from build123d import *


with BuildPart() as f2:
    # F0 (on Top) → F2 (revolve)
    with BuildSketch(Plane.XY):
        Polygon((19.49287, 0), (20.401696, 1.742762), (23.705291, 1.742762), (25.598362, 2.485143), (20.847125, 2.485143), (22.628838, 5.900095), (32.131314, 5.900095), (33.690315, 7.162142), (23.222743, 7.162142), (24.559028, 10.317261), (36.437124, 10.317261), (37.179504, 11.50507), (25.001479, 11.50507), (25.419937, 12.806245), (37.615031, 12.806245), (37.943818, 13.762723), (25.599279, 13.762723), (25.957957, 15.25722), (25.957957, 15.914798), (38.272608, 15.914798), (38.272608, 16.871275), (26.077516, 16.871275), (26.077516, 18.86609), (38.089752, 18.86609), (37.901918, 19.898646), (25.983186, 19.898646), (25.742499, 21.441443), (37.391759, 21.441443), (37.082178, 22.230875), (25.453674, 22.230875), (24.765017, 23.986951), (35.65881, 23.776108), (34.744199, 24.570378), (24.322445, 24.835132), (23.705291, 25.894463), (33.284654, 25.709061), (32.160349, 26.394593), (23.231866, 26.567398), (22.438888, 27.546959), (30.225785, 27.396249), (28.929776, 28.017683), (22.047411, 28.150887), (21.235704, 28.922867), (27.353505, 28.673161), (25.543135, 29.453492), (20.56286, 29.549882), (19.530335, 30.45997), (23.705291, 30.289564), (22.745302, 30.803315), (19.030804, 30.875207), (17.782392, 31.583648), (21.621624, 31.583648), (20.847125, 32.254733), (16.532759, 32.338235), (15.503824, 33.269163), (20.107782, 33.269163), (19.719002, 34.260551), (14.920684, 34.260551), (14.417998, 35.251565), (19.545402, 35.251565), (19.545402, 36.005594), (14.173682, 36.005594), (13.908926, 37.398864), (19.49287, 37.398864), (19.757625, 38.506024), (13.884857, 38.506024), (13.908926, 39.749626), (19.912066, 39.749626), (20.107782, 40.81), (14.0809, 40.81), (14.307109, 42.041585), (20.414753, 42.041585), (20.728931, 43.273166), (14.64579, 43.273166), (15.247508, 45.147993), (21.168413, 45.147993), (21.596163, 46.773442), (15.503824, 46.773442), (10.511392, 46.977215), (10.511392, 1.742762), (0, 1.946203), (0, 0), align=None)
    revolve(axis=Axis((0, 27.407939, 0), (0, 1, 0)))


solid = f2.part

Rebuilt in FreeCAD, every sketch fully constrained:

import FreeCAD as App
import Part
import Sketcher
from FreeCAD import Vector

doc = App.newDocument("Part")
params = doc.addObject("Spreadsheet::Sheet", "Params")
for row, (alias, value) in enumerate([
    ("revolution_angle", "360 deg"),
], start=1):
    params.set(f"A{row}", alias)
    params.set(f"B{row}", "=" + value)
    params.setAlias(f"B{row}", alias)

body = doc.addObject("PartDesign::Body", "Body")

# Sketch on XY plane
sketch1 = body.newObject("Sketcher::SketchObject", "Sketch")
sketch1.AttachmentSupport = (doc.getObject("XY_Plane"), [""])
sketch1.MapMode = "FlatFace"
sketch1.addGeometry(Part.LineSegment(Vector(19.49287, 0, 0), Vector(20.401696, 1.742762, 0)), False)
sketch1.addGeometry(Part.LineSegment(Vector(20.401696, 1.742762, 0), Vector(23.705291, 1.742762, 0)), False)
sketch1.addGeometry(Part.LineSegment(Vector(23.705291, 1.742762, 0), Vector(25.598362, 2.485143, 0)), False)
sketch1.addGeometry(Part.LineSegment(Vector(25.598362, 2.485143, 0), Vector(20.847125, 2.485143, 0)), False)
sketch1.addGeometry(Part.LineSegment(Vector(20.847125, 2.485143, 0), Vector(22.628838, 5.900095, 0)), False)
sketch1.addGeometry(Part.LineSegment(Vector(22.628838, 5.900095, 0), Vector(32.131314, 5.900095, 0)), False)
sketch1.addGeometry(Part.LineSegment(Vector(32.131314, 5.900095, 0), Vector(33.690315, 7.162142, 0)), False)
sketch1.addGeometry(Part.LineSegment(Vector(33.690315, 7.162142, 0), Vector(23.222743, 7.162142, 0)), False)
sketch1.addGeometry(Part.LineSegment(Vector(23.222743, 7.162142, 0), Vector(24.559028, 10.317261, 0)), False)
sketch1.addGeometry(Part.LineSegment(Vector(24.559028, 10.317261, 0), Vector(36.437124, 10.317261, 0)), False)
sketch1.addGeometry(Part.LineSegment(Vector(36.437124, 10.317261, 0), Vector(37.179504, 11.50507, 0)), False)
sketch1.addGeometry(Part.LineSegment(Vector(37.179504, 11.50507, 0), Vector(25.001479, 11.50507, 0)), False)
sketch1.addGeometry(Part.LineSegment(Vector(25.001479, 11.50507, 0), Vector(25.419937, 12.806245, 0)), False)
sketch1.addGeometry(Part.LineSegment(Vector(25.419937, 12.806245, 0), Vector(37.615031, 12.806245, 0)), False)
sketch1.addGeometry(Part.LineSegment(Vector(37.615031, 12.806245, 0), Vector(37.943818, 13.762723, 0)), False)
sketch1.addGeometry(Part.LineSegment(Vector(37.943818, 13.762723, 0), Vector(25.599279, 13.762723, 0)), False)
sketch1.addGeometry(Part.LineSegment(Vector(25.599279, 13.762723, 0), Vector(25.957957, 15.25722, 0)), False)
sketch1.addGeometry(Part.LineSegment(Vector(25.957957, 15.25722, 0), Vector(25.957957, 15.914798, 0)), False)
sketch1.addGeometry(Part.LineSegment(Vector(25.957957, 15.914798, 0), Vector(38.272608, 15.914798, 0)), False)
sketch1.addGeometry(Part.LineSegment(Vector(38.272608, 15.914798, 0), Vector(38.272608, 16.871275, 0)), False)
sketch1.addGeometry(Part.LineSegment(Vector(38.272608, 16.871275, 0), Vector(26.077516, 16.871275, 0)), False)
sketch1.addGeometry(Part.LineSegment(Vector(26.077516, 16.871275, 0), Vector(26.077516, 18.86609, 0)), False)
sketch1.addGeometry(Part.LineSegment(Vector(26.077516, 18.86609, 0), Vector(38.089752, 18.86609, 0)), False)
sketch1.addGeometry(Part.LineSegment(Vector(38.089752, 18.86609, 0), Vector(37.901918, 19.898646, 0)), False)
sketch1.addGeometry(Part.LineSegment(Vector(37.901918, 19.898646, 0), Vector(25.983186, 19.898646, 0)), False)
sketch1.addGeometry(Part.LineSegment(Vector(25.983186, 19.898646, 0), Vector(25.742499, 21.441443, 0)), False)
sketch1.addGeometry(Part.LineSegment(Vector(25.742499, 21.441443, 0), Vector(37.391759, 21.441443, 0)), False)
sketch1.addGeometry(Part.LineSegment(Vector(37.391759, 21.441443, 0), Vector(37.082178, 22.230875, 0)), False)
sketch1.addGeometry(Part.LineSegment(Vector(37.082178, 22.230875, 0), Vector(25.453674, 22.230875, 0)), False)
sketch1.addGeometry(Part.LineSegment(Vector(25.453674, 22.230875, 0), Vector(24.765017, 23.986951, 0)), False)
sketch1.addGeometry(Part.LineSegment(Vector(24.765017, 23.986951, 0), Vector(35.65881, 23.776108, 0)), False)
sketch1.addGeometry(Part.LineSegment(Vector(35.65881, 23.776108, 0), Vector(34.744199, 24.570378, 0)), False)
sketch1.addGeometry(Part.LineSegment(Vector(34.744199, 24.570378, 0), Vector(24.322445, 24.835132, 0)), False)
sketch1.addGeometry(Part.LineSegment(Vector(24.322445, 24.835132, 0), Vector(23.705291, 25.894463, 0)), False)
sketch1.addGeometry(Part.LineSegment(Vector(23.705291, 25.894463, 0), Vector(33.284654, 25.709061, 0)), False)
sketch1.addGeometry(Part.LineSegment(Vector(33.284654, 25.709061, 0), Vector(32.160349, 26.394593, 0)), False)
sketch1.addGeometry(Part.LineSegment(Vector(32.160349, 26.394593, 0), Vector(23.231866, 26.567398, 0)), False)
sketch1.addGeometry(Part.LineSegment(Vector(23.231866, 26.567398, 0), Vector(22.438888, 27.546959, 0)), False)
sketch1.addGeometry(Part.LineSegment(Vector(22.438888, 27.546959, 0), Vector(30.225785, 27.396249, 0)), False)
sketch1.addGeometry(Part.LineSegment(Vector(30.225785, 27.396249, 0), Vector(28.929776, 28.017683, 0)), False)
sketch1.addGeometry(Part.LineSegment(Vector(28.929776, 28.017683, 0), Vector(22.047411, 28.150887, 0)), False)
sketch1.addGeometry(Part.LineSegment(Vector(22.047411, 28.150887, 0), Vector(21.235704, 28.922867, 0)), False)
sketch1.addGeometry(Part.LineSegment(Vector(21.235704, 28.922867, 0), Vector(27.353505, 28.673161, 0)), False)
sketch1.addGeometry(Part.LineSegment(Vector(27.353505, 28.673161, 0), Vector(25.543135, 29.453492, 0)), False)
sketch1.addGeometry(Part.LineSegment(Vector(25.543135, 29.453492, 0), Vector(20.56286, 29.549882, 0)), False)
sketch1.addGeometry(Part.LineSegment(Vector(20.56286, 29.549882, 0), Vector(19.530335, 30.45997, 0)), False)
sketch1.addGeometry(Part.LineSegment(Vector(19.530335, 30.45997, 0), Vector(23.705291, 30.289564, 0)), False)
sketch1.addGeometry(Part.LineSegment(Vector(23.705291, 30.289564, 0), Vector(22.745302, 30.803315, 0)), False)
sketch1.addGeometry(Part.LineSegment(Vector(22.745302, 30.803315, 0), Vector(19.030804, 30.875207, 0)), False)
sketch1.addGeometry(Part.LineSegment(Vector(19.030804, 30.875207, 0), Vector(17.782392, 31.583648, 0)), False)
sketch1.addGeometry(Part.LineSegment(Vector(17.782392, 31.583648, 0), Vector(21.621624, 31.583648, 0)), False)
sketch1.addGeometry(Part.LineSegment(Vector(21.621624, 31.583648, 0), Vector(20.847125, 32.254733, 0)), False)
sketch1.addGeometry(Part.LineSegment(Vector(20.847125, 32.254733, 0), Vector(16.532759, 32.338235, 0)), False)
sketch1.addGeometry(Part.LineSegment(Vector(16.532759, 32.338235, 0), Vector(15.503824, 33.269163, 0)), False)
sketch1.addGeometry(Part.LineSegment(Vector(15.503824, 33.269163, 0), Vector(20.107782, 33.269163, 0)), False)
sketch1.addGeometry(Part.LineSegment(Vector(20.107782, 33.269163, 0), Vector(19.719002, 34.260551, 0)), False)
sketch1.addGeometry(Part.LineSegment(Vector(19.719002, 34.260551, 0), Vector(14.920684, 34.260551, 0)), False)
sketch1.addGeometry(Part.LineSegment(Vector(14.920684, 34.260551, 0), Vector(14.417998, 35.251565, 0)), False)
sketch1.addGeometry(Part.LineSegment(Vector(14.417998, 35.251565, 0), Vector(19.545402, 35.251565, 0)), False)
sketch1.addGeometry(Part.LineSegment(Vector(19.545402, 35.251565, 0), Vector(19.545402, 36.005594, 0)), False)
sketch1.addGeometry(Part.LineSegment(Vector(19.545402, 36.005594, 0), Vector(14.173682, 36.005594, 0)), False)
sketch1.addGeometry(Part.LineSegment(Vector(14.173682, 36.005594, 0), Vector(13.908926, 37.398864, 0)), False)
sketch1.addGeometry(Part.LineSegment(Vector(13.908926, 37.398864, 0), Vector(19.49287, 37.398864, 0)), False)
sketch1.addGeometry(Part.LineSegment(Vector(19.49287, 37.398864, 0), Vector(19.757625, 38.506024, 0)), False)
sketch1.addGeometry(Part.LineSegment(Vector(19.757625, 38.506024, 0), Vector(13.884857, 38.506024, 0)), False)
sketch1.addGeometry(Part.LineSegment(Vector(13.884857, 38.506024, 0), Vector(13.908926, 39.749626, 0)), False)
sketch1.addGeometry(Part.LineSegment(Vector(13.908926, 39.749626, 0), Vector(19.912066, 39.749626, 0)), False)
sketch1.addGeometry(Part.LineSegment(Vector(19.912066, 39.749626, 0), Vector(20.107782, 40.81, 0)), False)
sketch1.addGeometry(Part.LineSegment(Vector(20.107782, 40.81, 0), Vector(14.0809, 40.81, 0)), False)
sketch1.addGeometry(Part.LineSegment(Vector(14.0809, 40.81, 0), Vector(14.307109, 42.041585, 0)), False)
sketch1.addGeometry(Part.LineSegment(Vector(14.307109, 42.041585, 0), Vector(20.414753, 42.041585, 0)), False)
sketch1.addGeometry(Part.LineSegment(Vector(20.414753, 42.041585, 0), Vector(20.728931, 43.273166, 0)), False)
sketch1.addGeometry(Part.LineSegment(Vector(20.728931, 43.273166, 0), Vector(14.64579, 43.273166, 0)), False)
sketch1.addGeometry(Part.LineSegment(Vector(14.64579, 43.273166, 0), Vector(15.247508, 45.147993, 0)), False)
sketch1.addGeometry(Part.LineSegment(Vector(15.247508, 45.147993, 0), Vector(21.168413, 45.147993, 0)), False)
sketch1.addGeometry(Part.LineSegment(Vector(21.168413, 45.147993, 0), Vector(21.596163, 46.773442, 0)), False)
sketch1.addGeometry(Part.LineSegment(Vector(21.596163, 46.773442, 0), Vector(15.503824, 46.773442, 0)), False)
sketch1.addGeometry(Part.LineSegment(Vector(15.503824, 46.773442, 0), Vector(10.511392, 46.977215, 0)), False)
sketch1.addGeometry(Part.LineSegment(Vector(10.511392, 46.977215, 0), Vector(10.511392, 1.742762, 0)), False)
sketch1.addGeometry(Part.LineSegment(Vector(10.511392, 1.742762, 0), Vector(0, 1.946203, 0)), False)
sketch1.addGeometry(Part.LineSegment(Vector(0, 1.946203, 0), Vector(0, 0, 0)), False)
sketch1.addGeometry(Part.LineSegment(Vector(0, 0, 0), Vector(19.49287, 0, 0)), False)
sketch1.addConstraint(Sketcher.Constraint("Coincident", 0, 2, 1, 1))
sketch1.addConstraint(Sketcher.Constraint("Coincident", 1, 2, 2, 1))
sketch1.addConstraint(Sketcher.Constraint("Coincident", 2, 2, 3, 1))
sketch1.addConstraint(Sketcher.Constraint("Coincident", 3, 2, 4, 1))
sketch1.addConstraint(Sketcher.Constraint("Coincident", 4, 2, 5, 1))
sketch1.addConstraint(Sketcher.Constraint("Coincident", 5, 2, 6, 1))
sketch1.addConstraint(Sketcher.Constraint("Coincident", 6, 2, 7, 1))
sketch1.addConstraint(Sketcher.Constraint("Coincident", 7, 2, 8, 1))
sketch1.addConstraint(Sketcher.Constraint("Coincident", 8, 2, 9, 1))
sketch1.addConstraint(Sketcher.Constraint("Coincident", 9, 2, 10, 1))
sketch1.addConstraint(Sketcher.Constraint("Coincident", 10, 2, 11, 1))
sketch1.addConstraint(Sketcher.Constraint("Coincident", 11, 2, 12, 1))
sketch1.addConstraint(Sketcher.Constraint("Coincident", 12, 2, 13, 1))
sketch1.addConstraint(Sketcher.Constraint("Coincident", 13, 2, 14, 1))
sketch1.addConstraint(Sketcher.Constraint("Coincident", 14, 2, 15, 1))
sketch1.addConstraint(Sketcher.Constraint("Coincident", 15, 2, 16, 1))
sketch1.addConstraint(Sketcher.Constraint("Coincident", 16, 2, 17, 1))
sketch1.addConstraint(Sketcher.Constraint("Coincident", 17, 2, 18, 1))
sketch1.addConstraint(Sketcher.Constraint("Coincident", 18, 2, 19, 1))
sketch1.addConstraint(Sketcher.Constraint("Coincident", 19, 2, 20, 1))
sketch1.addConstraint(Sketcher.Constraint("Coincident", 20, 2, 21, 1))
sketch1.addConstraint(Sketcher.Constraint("Coincident", 21, 2, 22, 1))
sketch1.addConstraint(Sketcher.Constraint("Coincident", 22, 2, 23, 1))
sketch1.addConstraint(Sketcher.Constraint("Coincident", 23, 2, 24, 1))
sketch1.addConstraint(Sketcher.Constraint("Coincident", 24, 2, 25, 1))
sketch1.addConstraint(Sketcher.Constraint("Coincident", 25, 2, 26, 1))
sketch1.addConstraint(Sketcher.Constraint("Coincident", 26, 2, 27, 1))
sketch1.addConstraint(Sketcher.Constraint("Coincident", 27, 2, 28, 1))
sketch1.addConstraint(Sketcher.Constraint("Coincident", 28, 2, 29, 1))
sketch1.addConstraint(Sketcher.Constraint("Coincident", 29, 2, 30, 1))
sketch1.addConstraint(Sketcher.Constraint("Coincident", 30, 2, 31, 1))
sketch1.addConstraint(Sketcher.Constraint("Coincident", 31, 2, 32, 1))
sketch1.addConstraint(Sketcher.Constraint("Coincident", 32, 2, 33, 1))
sketch1.addConstraint(Sketcher.Constraint("Coincident", 33, 2, 34, 1))
sketch1.addConstraint(Sketcher.Constraint("Coincident", 34, 2, 35, 1))
sketch1.addConstraint(Sketcher.Constraint("Coincident", 35, 2, 36, 1))
sketch1.addConstraint(Sketcher.Constraint("Coincident", 36, 2, 37, 1))
sketch1.addConstraint(Sketcher.Constraint("Coincident", 37, 2, 38, 1))
sketch1.addConstraint(Sketcher.Constraint("Coincident", 38, 2, 39, 1))
sketch1.addConstraint(Sketcher.Constraint("Coincident", 39, 2, 40, 1))
sketch1.addConstraint(Sketcher.Constraint("Coincident", 40, 2, 41, 1))
sketch1.addConstraint(Sketcher.Constraint("Coincident", 41, 2, 42, 1))
sketch1.addConstraint(Sketcher.Constraint("Coincident", 42, 2, 43, 1))
sketch1.addConstraint(Sketcher.Constraint("Coincident", 43, 2, 44, 1))
sketch1.addConstraint(Sketcher.Constraint("Coincident", 44, 2, 45, 1))
sketch1.addConstraint(Sketcher.Constraint("Coincident", 45, 2, 46, 1))
sketch1.addConstraint(Sketcher.Constraint("Coincident", 46, 2, 47, 1))
sketch1.addConstraint(Sketcher.Constraint("Coincident", 47, 2, 48, 1))
sketch1.addConstraint(Sketcher.Constraint("Coincident", 48, 2, 49, 1))
sketch1.addConstraint(Sketcher.Constraint("Coincident", 49, 2, 50, 1))
sketch1.addConstraint(Sketcher.Constraint("Coincident", 50, 2, 51, 1))
sketch1.addConstraint(Sketcher.Constraint("Coincident", 51, 2, 52, 1))
sketch1.addConstraint(Sketcher.Constraint("Coincident", 52, 2, 53, 1))
sketch1.addConstraint(Sketcher.Constraint("Coincident", 53, 2, 54, 1))
sketch1.addConstraint(Sketcher.Constraint("Coincident", 54, 2, 55, 1))
sketch1.addConstraint(Sketcher.Constraint("Coincident", 55, 2, 56, 1))
sketch1.addConstraint(Sketcher.Constraint("Coincident", 56, 2, 57, 1))
sketch1.addConstraint(Sketcher.Constraint("Coincident", 57, 2, 58, 1))
sketch1.addConstraint(Sketcher.Constraint("Coincident", 58, 2, 59, 1))
sketch1.addConstraint(Sketcher.Constraint("Coincident", 59, 2, 60, 1))
sketch1.addConstraint(Sketcher.Constraint("Coincident", 60, 2, 61, 1))
sketch1.addConstraint(Sketcher.Constraint("Coincident", 61, 2, 62, 1))
sketch1.addConstraint(Sketcher.Constraint("Coincident", 62, 2, 63, 1))
sketch1.addConstraint(Sketcher.Constraint("Coincident", 63, 2, 64, 1))
sketch1.addConstraint(Sketcher.Constraint("Coincident", 64, 2, 65, 1))
sketch1.addConstraint(Sketcher.Constraint("Coincident", 65, 2, 66, 1))
sketch1.addConstraint(Sketcher.Constraint("Coincident", 66, 2, 67, 1))
sketch1.addConstraint(Sketcher.Constraint("Coincident", 67, 2, 68, 1))
sketch1.addConstraint(Sketcher.Constraint("Coincident", 68, 2, 69, 1))
sketch1.addConstraint(Sketcher.Constraint("Coincident", 69, 2, 70, 1))
sketch1.addConstraint(Sketcher.Constraint("Coincident", 70, 2, 71, 1))
sketch1.addConstraint(Sketcher.Constraint("Coincident", 71, 2, 72, 1))
sketch1.addConstraint(Sketcher.Constraint("Coincident", 72, 2, 73, 1))
sketch1.addConstraint(Sketcher.Constraint("Coincident", 73, 2, 74, 1))
sketch1.addConstraint(Sketcher.Constraint("Coincident", 74, 2, 75, 1))
sketch1.addConstraint(Sketcher.Constraint("Coincident", 75, 2, 76, 1))
sketch1.addConstraint(Sketcher.Constraint("Coincident", 76, 2, 77, 1))
sketch1.addConstraint(Sketcher.Constraint("Coincident", 77, 2, 78, 1))
sketch1.addConstraint(Sketcher.Constraint("Coincident", 78, 2, 79, 1))
sketch1.addConstraint(Sketcher.Constraint("Coincident", 79, 2, 80, 1))
sketch1.addConstraint(Sketcher.Constraint("Coincident", 80, 2, 81, 1))
sketch1.addConstraint(Sketcher.Constraint("Coincident", 81, 2, 0, 1))
sketch1.addConstraint(Sketcher.Constraint("Horizontal", 1))
sketch1.addConstraint(Sketcher.Constraint("Horizontal", 3))
sketch1.addConstraint(Sketcher.Constraint("Horizontal", 5))
sketch1.addConstraint(Sketcher.Constraint("Horizontal", 7))
sketch1.addConstraint(Sketcher.Constraint("Horizontal", 9))
sketch1.addConstraint(Sketcher.Constraint("Horizontal", 11))
sketch1.addConstraint(Sketcher.Constraint("Horizontal", 13))
sketch1.addConstraint(Sketcher.Constraint("Horizontal", 15))
sketch1.addConstraint(Sketcher.Constraint("Vertical", 17))
sketch1.addConstraint(Sketcher.Constraint("Horizontal", 18))
sketch1.addConstraint(Sketcher.Constraint("Vertical", 19))
sketch1.addConstraint(Sketcher.Constraint("Horizontal", 20))
sketch1.addConstraint(Sketcher.Constraint("Vertical", 21))
sketch1.addConstraint(Sketcher.Constraint("Horizontal", 22))
sketch1.addConstraint(Sketcher.Constraint("Horizontal", 24))
sketch1.addConstraint(Sketcher.Constraint("Horizontal", 26))
sketch1.addConstraint(Sketcher.Constraint("Horizontal", 28))
sketch1.addConstraint(Sketcher.Constraint("Horizontal", 50))
sketch1.addConstraint(Sketcher.Constraint("Horizontal", 54))
sketch1.addConstraint(Sketcher.Constraint("Horizontal", 56))
sketch1.addConstraint(Sketcher.Constraint("Horizontal", 58))
sketch1.addConstraint(Sketcher.Constraint("Vertical", 59))
sketch1.addConstraint(Sketcher.Constraint("Horizontal", 60))
sketch1.addConstraint(Sketcher.Constraint("Horizontal", 62))
sketch1.addConstraint(Sketcher.Constraint("Horizontal", 64))
sketch1.addConstraint(Sketcher.Constraint("Horizontal", 66))
sketch1.addConstraint(Sketcher.Constraint("Horizontal", 68))
sketch1.addConstraint(Sketcher.Constraint("Horizontal", 70))
sketch1.addConstraint(Sketcher.Constraint("Horizontal", 72))
sketch1.addConstraint(Sketcher.Constraint("Horizontal", 74))
sketch1.addConstraint(Sketcher.Constraint("Horizontal", 76))
sketch1.addConstraint(Sketcher.Constraint("Vertical", 78))
sketch1.addConstraint(Sketcher.Constraint("Vertical", 80))
sketch1.addConstraint(Sketcher.Constraint("Horizontal", 81))
sketch1.addConstraint(Sketcher.Constraint("Coincident", 80, 2, -1, 1))
sketch1.addConstraint(Sketcher.Constraint("DistanceY", -1, 1, 67, 2, 40.81))
sketch1.addConstraint(Sketcher.Constraint("DistanceX", -1, 1, 55, 2, 19.719002))
sketch1.addConstraint(Sketcher.Constraint("DistanceX", -1, 1, 57, 2, 14.417998))
sketch1.addConstraint(Sketcher.Constraint("Distance", 0, 1.965498))
sketch1.addConstraint(Sketcher.Constraint("Distance", 23, 1.049502))
sketch1.addConstraint(Sketcher.Constraint("Distance", 37, 1.260299))
sketch1.addConstraint(Sketcher.Constraint("DistanceX", 7, 2, 7, 1, 10.467572))
sketch1.addConstraint(Sketcher.Constraint("DistanceX", 15, 2, 15, 1, 12.344539))
sketch1.addConstraint(Sketcher.Constraint("DistanceX", 18, 1, 18, 2, 12.314651))
sketch1.addConstraint(Sketcher.Constraint("DistanceX", 20, 2, 20, 1, 12.195092))
sketch1.addConstraint(Sketcher.Constraint("DistanceX", 26, 1, 26, 2, 11.64926))
sketch1.addConstraint(Sketcher.Constraint("DistanceX", 50, 1, 50, 2, 3.839232))
sketch1.addConstraint(Sketcher.Constraint("DistanceX", 54, 1, 54, 2, 4.603958))
sketch1.addConstraint(Sketcher.Constraint("DistanceX", 60, 2, 60, 1, 5.37172))
sketch1.addConstraint(Sketcher.Constraint("DistanceX", 64, 2, 64, 1, 5.872768))
sketch1.addConstraint(Sketcher.Constraint("DistanceX", 66, 1, 66, 2, 6.00314))
sketch1.addConstraint(Sketcher.Constraint("DistanceX", 72, 2, 72, 1, 6.083141))
sketch1.addConstraint(Sketcher.Constraint("DistanceX", 76, 2, 76, 1, 6.092339))
sketch1.addConstraint(Sketcher.Constraint("DistanceX", 81, 1, 81, 2, 19.49287))
sketch1.addConstraint(Sketcher.Constraint("DistanceY", 59, 1, 59, 2, 0.754029))
sketch1.addConstraint(Sketcher.Constraint("DistanceX", -1, 1, 25, 2, 25.742499))
sketch1.addConstraint(Sketcher.Constraint("DistanceX", -1, 1, 31, 2, 34.744199))
sketch1.addConstraint(Sketcher.Constraint("DistanceY", -1, 1, 36, 2, 26.567398))
sketch1.addConstraint(Sketcher.Constraint("DistanceX", -1, 1, 47, 2, 22.745302))
sketch1.addConstraint(Sketcher.Constraint("DistanceX", -1, 1, 58, 2, 19.545402))
sketch1.addConstraint(Sketcher.Constraint("DistanceX", -1, 1, 68, 2, 14.0809))
sketch1.addConstraint(Sketcher.Constraint("Distance", 8, 3.426432))
sketch1.addConstraint(Sketcher.Constraint("Distance", 10, 1.400721))
sketch1.addConstraint(Sketcher.Constraint("Distance", 14, 1.01141))
sketch1.addConstraint(Sketcher.Constraint("Distance", 25, 1.561459))
sketch1.addConstraint(Sketcher.Constraint("Distance", 29, 1.88628))
sketch1.addConstraint(Sketcher.Constraint("Distance", 35, 1.31682))
sketch1.addConstraint(Sketcher.Constraint("Distance", 41, 1.120188))
sketch1.addConstraint(Sketcher.Constraint("Distance", 45, 1.37636))
sketch1.addConstraint(Sketcher.Constraint("Distance", 73, 1.96902))
sketch1.addConstraint(Sketcher.Constraint("Distance", 75, 1.68079))
sketch1.addConstraint(Sketcher.Constraint("Distance", 77, 4.996589))
sketch1.addConstraint(Sketcher.Constraint("Distance", 79, 10.513361))
sketch1.addConstraint(Sketcher.Constraint("DistanceX", 1, 1, 1, 2, 3.303595))
sketch1.addConstraint(Sketcher.Constraint("DistanceX", 3, 2, 3, 1, 4.751237))
sketch1.addConstraint(Sketcher.Constraint("DistanceX", 5, 1, 5, 2, 9.502476))
sketch1.addConstraint(Sketcher.Constraint("DistanceX", 9, 1, 9, 2, 11.878096))
sketch1.addConstraint(Sketcher.Constraint("DistanceX", 11, 2, 11, 1, 12.178025))
sketch1.addConstraint(Sketcher.Constraint("DistanceX", 13, 1, 13, 2, 12.195094))
sketch1.addConstraint(Sketcher.Constraint("DistanceX", 22, 1, 22, 2, 12.012236))
sketch1.addConstraint(Sketcher.Constraint("DistanceX", 24, 2, 24, 1, 11.918732))
sketch1.addConstraint(Sketcher.Constraint("DistanceX", 28, 2, 28, 1, 11.628504))
sketch1.addConstraint(Sketcher.Constraint("DistanceX", 56, 2, 56, 1, 4.798318))
sketch1.addConstraint(Sketcher.Constraint("DistanceX", 62, 1, 62, 2, 5.583944))
sketch1.addConstraint(Sketcher.Constraint("DistanceX", 68, 2, 68, 1, 6.026882))
sketch1.addConstraint(Sketcher.Constraint("DistanceX", 70, 1, 70, 2, 6.107644))
sketch1.addConstraint(Sketcher.Constraint("DistanceX", 74, 1, 74, 2, 5.920905))
sketch1.addConstraint(Sketcher.Constraint("DistanceY", 17, 1, 17, 2, 0.657578))
sketch1.addConstraint(Sketcher.Constraint("DistanceY", 19, 1, 19, 2, 0.956477))
sketch1.addConstraint(Sketcher.Constraint("DistanceY", 21, 1, 21, 2, 1.994815))
sketch1.addConstraint(Sketcher.Constraint("DistanceY", 78, 2, 78, 1, 45.234453))
sketch1.addConstraint(Sketcher.Constraint("DistanceY", 80, 2, 80, 1, 1.946203))
sketch1.addConstraint(Sketcher.Constraint("DistanceY", -1, 1, 0, 2, 1.742762))
sketch1.addConstraint(Sketcher.Constraint("DistanceX", -1, 1, 8, 2, 24.559028))
sketch1.addConstraint(Sketcher.Constraint("DistanceY", -1, 1, 8, 2, 10.317261))
sketch1.addConstraint(Sketcher.Constraint("DistanceY", -1, 1, 10, 2, 11.50507))
sketch1.addConstraint(Sketcher.Constraint("DistanceX", -1, 1, 13, 2, 37.615031))
sketch1.addConstraint(Sketcher.Constraint("DistanceX", -1, 1, 15, 2, 25.599279))
sketch1.addConstraint(Sketcher.Constraint("DistanceY", -1, 1, 16, 2, 15.25722))
sketch1.addConstraint(Sketcher.Constraint("DistanceX", -1, 1, 22, 2, 38.089752))
sketch1.addConstraint(Sketcher.Constraint("DistanceX", -1, 1, 23, 2, 37.901918))
sketch1.addConstraint(Sketcher.Constraint("DistanceY", -1, 1, 29, 2, 23.986951))
sketch1.addConstraint(Sketcher.Constraint("DistanceX", -1, 1, 30, 2, 35.65881))
sketch1.addConstraint(Sketcher.Constraint("DistanceY", -1, 1, 30, 2, 23.776108))
sketch1.addConstraint(Sketcher.Constraint("DistanceY", -1, 1, 31, 2, 24.570378))
sketch1.addConstraint(Sketcher.Constraint("DistanceX", -1, 1, 33, 2, 23.705291))
sketch1.addConstraint(Sketcher.Constraint("DistanceY", -1, 1, 34, 2, 25.709061))
sketch1.addConstraint(Sketcher.Constraint("DistanceX", -1, 1, 35, 2, 32.160349))
sketch1.addConstraint(Sketcher.Constraint("DistanceY", -1, 1, 37, 2, 27.546959))
sketch1.addConstraint(Sketcher.Constraint("DistanceY", -1, 1, 38, 2, 27.396249))
sketch1.addConstraint(Sketcher.Constraint("DistanceX", -1, 1, 40, 2, 22.047411))
sketch1.addConstraint(Sketcher.Constraint("DistanceY", -1, 1, 42, 2, 28.673161))
sketch1.addConstraint(Sketcher.Constraint("DistanceX", -1, 1, 44, 2, 20.56286))
sketch1.addConstraint(Sketcher.Constraint("DistanceY", -1, 1, 44, 2, 29.549882))
sketch1.addConstraint(Sketcher.Constraint("DistanceY", -1, 1, 45, 2, 30.45997))
sketch1.addConstraint(Sketcher.Constraint("DistanceX", -1, 1, 46, 2, 23.705291))
sketch1.addConstraint(Sketcher.Constraint("DistanceY", -1, 1, 49, 2, 31.583648))
sketch1.addConstraint(Sketcher.Constraint("DistanceX", -1, 1, 52, 2, 16.532759))
sketch1.addConstraint(Sketcher.Constraint("DistanceX", -1, 1, 54, 2, 20.107782))
sketch1.addConstraint(Sketcher.Constraint("DistanceY", -1, 1, 55, 2, 34.260551))
sketch1.addConstraint(Sketcher.Constraint("DistanceX", -1, 1, 62, 2, 19.49287))
sketch1.addConstraint(Sketcher.Constraint("DistanceX", -1, 1, 69, 2, 14.307109))
sketch1.addConstraint(Sketcher.Constraint("DistanceX", -1, 1, 71, 2, 20.728931))
sketch1.addConstraint(Sketcher.Constraint("DistanceY", -1, 1, 78, 2, 1.742762))
sketch1.addConstraint(Sketcher.Constraint("Distance", 2, 2.033432))
sketch1.addConstraint(Sketcher.Constraint("Distance", 4, 3.851805))
sketch1.addConstraint(Sketcher.Constraint("Distance", 6, 2.005803))
sketch1.addConstraint(Sketcher.Constraint("Distance", 12, 1.366808))
sketch1.addConstraint(Sketcher.Constraint("Distance", 27, 0.847964))
sketch1.addConstraint(Sketcher.Constraint("Distance", 32, 10.425116))
sketch1.addConstraint(Sketcher.Constraint("Distance", 33, 1.225994))
sketch1.addConstraint(Sketcher.Constraint("Distance", 34, 9.581157))
sketch1.addConstraint(Sketcher.Constraint("Distance", 36, 8.930155))
sketch1.addConstraint(Sketcher.Constraint("Distance", 38, 7.788355))
sketch1.addConstraint(Sketcher.Constraint("Distance", 39, 1.437296))
sketch1.addConstraint(Sketcher.Constraint("Distance", 40, 6.883654))
sketch1.addConstraint(Sketcher.Constraint("Distance", 42, 6.122895))
sketch1.addConstraint(Sketcher.Constraint("Distance", 43, 1.971384))
sketch1.addConstraint(Sketcher.Constraint("Distance", 44, 4.981208))
sketch1.addConstraint(Sketcher.Constraint("Distance", 46, 4.178432))
sketch1.addConstraint(Sketcher.Constraint("Distance", 47, 1.088815))
sketch1.addConstraint(Sketcher.Constraint("Distance", 48, 3.715194))
sketch1.addConstraint(Sketcher.Constraint("Distance", 49, 1.435417))
sketch1.addConstraint(Sketcher.Constraint("Distance", 51, 1.024795))
sketch1.addConstraint(Sketcher.Constraint("Distance", 52, 4.315174))
sketch1.addConstraint(Sketcher.Constraint("Distance", 53, 1.387564))
sketch1.addConstraint(Sketcher.Constraint("Distance", 55, 1.064894))
sketch1.addConstraint(Sketcher.Constraint("Distance", 57, 1.111216))
sketch1.addConstraint(Sketcher.Constraint("Distance", 61, 1.418202))
sketch1.addConstraint(Sketcher.Constraint("Distance", 63, 1.138375))
sketch1.addConstraint(Sketcher.Constraint("Distance", 65, 1.243835))
sketch1.addConstraint(Sketcher.Constraint("Distance", 67, 1.078285))
sketch1.addConstraint(Sketcher.Constraint("Distance", 69, 1.252187))
sketch1.addConstraint(Sketcher.Constraint("Distance", 71, 1.271023))
sketch1.addConstraint(Sketcher.Constraint("DistanceX", -1, 1, 2, 2, 25.598362))
sketch1.addConstraint(Sketcher.Constraint("DistanceX", -1, 1, 4, 2, 22.628838))
sketch1.addConstraint(Sketcher.Constraint("DistanceX", -1, 1, 27, 2, 37.082178))
sketch1.addConstraint(Sketcher.Constraint("DistanceX", -1, 1, 32, 2, 24.322445))
sketch1.addConstraint(Sketcher.Constraint("DistanceX", -1, 1, 39, 2, 28.929776))
sketch1.addConstraint(Sketcher.Constraint("DistanceX", -1, 1, 41, 2, 21.235704))
sketch1.addConstraint(Sketcher.Constraint("DistanceX", -1, 1, 48, 2, 19.030804))
sketch1.addConstraint(Sketcher.Constraint("DistanceX", -1, 1, 63, 2, 19.757625))
sketch1.addConstraint(Sketcher.Constraint("DistanceX", -1, 1, 73, 2, 15.247508))
revolution = body.newObject("PartDesign::Revolution", "Revolution")
revolution.Profile = sketch1
revolution.ReferenceAxis = (sketch1, ["V_Axis"])
revolution.setExpression("Angle", "Params.revolution_angle")

doc.recompute()
